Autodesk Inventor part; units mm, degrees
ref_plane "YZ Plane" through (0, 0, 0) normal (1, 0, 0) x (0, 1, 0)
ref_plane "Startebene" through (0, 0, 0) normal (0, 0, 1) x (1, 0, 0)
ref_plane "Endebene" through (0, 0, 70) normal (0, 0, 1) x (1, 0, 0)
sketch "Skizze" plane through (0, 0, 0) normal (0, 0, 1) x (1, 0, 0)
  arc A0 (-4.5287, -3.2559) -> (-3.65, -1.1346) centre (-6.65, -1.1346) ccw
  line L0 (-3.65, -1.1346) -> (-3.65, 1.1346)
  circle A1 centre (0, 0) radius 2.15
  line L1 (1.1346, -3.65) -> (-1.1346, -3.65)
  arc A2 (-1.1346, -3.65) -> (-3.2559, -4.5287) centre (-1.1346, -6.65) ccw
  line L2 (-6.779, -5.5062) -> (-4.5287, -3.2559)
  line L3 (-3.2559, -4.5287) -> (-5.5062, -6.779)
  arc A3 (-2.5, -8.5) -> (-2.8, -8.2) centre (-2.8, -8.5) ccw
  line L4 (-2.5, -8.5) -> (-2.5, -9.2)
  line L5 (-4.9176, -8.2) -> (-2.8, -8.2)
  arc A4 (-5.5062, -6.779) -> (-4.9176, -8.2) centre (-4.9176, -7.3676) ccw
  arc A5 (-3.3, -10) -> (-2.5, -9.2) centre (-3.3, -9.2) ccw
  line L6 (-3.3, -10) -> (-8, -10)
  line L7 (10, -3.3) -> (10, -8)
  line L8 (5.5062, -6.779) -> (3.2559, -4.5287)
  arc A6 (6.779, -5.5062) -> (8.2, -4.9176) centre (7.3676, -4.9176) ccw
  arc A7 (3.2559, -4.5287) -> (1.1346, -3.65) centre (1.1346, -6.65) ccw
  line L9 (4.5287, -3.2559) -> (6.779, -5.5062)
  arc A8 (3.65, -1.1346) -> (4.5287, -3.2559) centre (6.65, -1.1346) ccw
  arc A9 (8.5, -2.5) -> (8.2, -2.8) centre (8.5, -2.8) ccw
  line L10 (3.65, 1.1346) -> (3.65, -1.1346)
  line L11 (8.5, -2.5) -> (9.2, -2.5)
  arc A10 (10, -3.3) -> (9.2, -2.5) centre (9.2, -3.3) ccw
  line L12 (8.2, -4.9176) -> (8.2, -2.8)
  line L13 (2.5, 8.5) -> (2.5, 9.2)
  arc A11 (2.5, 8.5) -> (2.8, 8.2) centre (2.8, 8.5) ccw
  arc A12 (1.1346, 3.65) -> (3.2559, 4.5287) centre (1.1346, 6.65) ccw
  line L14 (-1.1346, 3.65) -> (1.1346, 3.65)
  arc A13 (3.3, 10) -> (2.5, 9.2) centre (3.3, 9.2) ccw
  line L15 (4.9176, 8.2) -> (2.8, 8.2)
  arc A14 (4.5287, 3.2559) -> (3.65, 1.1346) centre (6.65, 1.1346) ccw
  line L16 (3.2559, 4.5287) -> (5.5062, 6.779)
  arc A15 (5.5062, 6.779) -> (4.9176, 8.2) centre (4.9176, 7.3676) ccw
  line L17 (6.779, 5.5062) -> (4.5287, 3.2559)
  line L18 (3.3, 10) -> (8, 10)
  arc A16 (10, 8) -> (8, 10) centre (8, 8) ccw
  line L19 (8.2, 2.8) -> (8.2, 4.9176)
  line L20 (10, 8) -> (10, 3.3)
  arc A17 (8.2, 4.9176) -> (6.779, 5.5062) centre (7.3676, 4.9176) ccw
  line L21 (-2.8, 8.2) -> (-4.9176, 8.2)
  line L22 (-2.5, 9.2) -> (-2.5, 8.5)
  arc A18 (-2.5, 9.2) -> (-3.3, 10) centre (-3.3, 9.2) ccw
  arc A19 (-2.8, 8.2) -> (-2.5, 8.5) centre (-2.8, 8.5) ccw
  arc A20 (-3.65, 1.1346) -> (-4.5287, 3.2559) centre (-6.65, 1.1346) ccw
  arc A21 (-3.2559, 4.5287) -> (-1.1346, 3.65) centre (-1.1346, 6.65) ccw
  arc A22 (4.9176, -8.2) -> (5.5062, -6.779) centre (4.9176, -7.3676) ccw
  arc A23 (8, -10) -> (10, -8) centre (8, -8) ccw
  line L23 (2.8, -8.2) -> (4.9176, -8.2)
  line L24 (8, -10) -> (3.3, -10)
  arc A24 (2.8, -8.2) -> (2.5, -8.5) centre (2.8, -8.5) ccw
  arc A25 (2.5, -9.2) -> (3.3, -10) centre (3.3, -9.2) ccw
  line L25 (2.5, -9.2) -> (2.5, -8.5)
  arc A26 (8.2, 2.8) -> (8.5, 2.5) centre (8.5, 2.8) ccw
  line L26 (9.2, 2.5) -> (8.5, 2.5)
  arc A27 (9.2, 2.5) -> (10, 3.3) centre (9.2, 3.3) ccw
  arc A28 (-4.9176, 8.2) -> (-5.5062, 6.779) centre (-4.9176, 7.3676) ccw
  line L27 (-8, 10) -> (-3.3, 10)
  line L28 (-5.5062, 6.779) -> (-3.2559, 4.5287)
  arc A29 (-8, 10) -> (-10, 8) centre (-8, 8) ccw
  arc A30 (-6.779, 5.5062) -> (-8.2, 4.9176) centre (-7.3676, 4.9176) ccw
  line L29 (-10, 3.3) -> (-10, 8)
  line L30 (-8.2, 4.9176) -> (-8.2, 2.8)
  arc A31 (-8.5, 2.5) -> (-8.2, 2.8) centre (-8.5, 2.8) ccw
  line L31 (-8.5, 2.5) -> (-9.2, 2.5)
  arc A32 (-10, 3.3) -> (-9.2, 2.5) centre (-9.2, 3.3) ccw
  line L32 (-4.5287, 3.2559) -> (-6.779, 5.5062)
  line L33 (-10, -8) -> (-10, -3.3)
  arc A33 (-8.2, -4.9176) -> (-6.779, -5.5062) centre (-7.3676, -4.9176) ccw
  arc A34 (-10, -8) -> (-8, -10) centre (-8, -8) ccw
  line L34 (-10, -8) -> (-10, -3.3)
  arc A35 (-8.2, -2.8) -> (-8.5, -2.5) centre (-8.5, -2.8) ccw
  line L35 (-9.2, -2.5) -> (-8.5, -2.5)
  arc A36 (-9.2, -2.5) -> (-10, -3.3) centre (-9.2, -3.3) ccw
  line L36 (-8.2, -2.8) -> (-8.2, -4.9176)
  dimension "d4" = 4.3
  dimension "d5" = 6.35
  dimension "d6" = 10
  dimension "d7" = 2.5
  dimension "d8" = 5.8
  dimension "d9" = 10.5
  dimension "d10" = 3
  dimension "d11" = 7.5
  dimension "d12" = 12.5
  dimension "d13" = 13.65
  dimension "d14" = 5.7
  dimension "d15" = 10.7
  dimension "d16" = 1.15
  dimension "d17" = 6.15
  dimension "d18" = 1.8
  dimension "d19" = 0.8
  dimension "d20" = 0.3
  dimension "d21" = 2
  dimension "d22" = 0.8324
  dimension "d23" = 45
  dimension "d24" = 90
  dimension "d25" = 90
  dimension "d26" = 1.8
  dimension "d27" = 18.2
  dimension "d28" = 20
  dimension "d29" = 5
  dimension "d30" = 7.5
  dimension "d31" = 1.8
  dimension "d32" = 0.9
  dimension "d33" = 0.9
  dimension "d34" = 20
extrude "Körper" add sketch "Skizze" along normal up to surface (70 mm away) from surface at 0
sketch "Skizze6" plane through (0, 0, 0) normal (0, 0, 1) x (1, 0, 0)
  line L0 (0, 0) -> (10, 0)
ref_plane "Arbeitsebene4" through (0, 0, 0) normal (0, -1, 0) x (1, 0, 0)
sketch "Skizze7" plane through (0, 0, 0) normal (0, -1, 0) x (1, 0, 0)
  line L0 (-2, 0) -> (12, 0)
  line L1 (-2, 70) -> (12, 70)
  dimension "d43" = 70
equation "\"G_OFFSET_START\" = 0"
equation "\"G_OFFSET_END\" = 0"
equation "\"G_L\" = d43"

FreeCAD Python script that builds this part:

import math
import FreeCAD as App
import Part
import Sketcher

V = App.Vector
Q = App.Units.Quantity

doc = App.newDocument("Part")
body = doc.addObject("PartDesign::Body", "Body")

# Sketch on XY plane
sketch1 = body.newObject("Sketcher::SketchObject", "Sketch")
sketch1.AttachmentSupport = (doc.getObject("XY_Plane"), [""])
sketch1.MapMode = "FlatFace"
sketch1.addGeometry([
    Part.ArcOfCircle(Part.Circle(V(-6.65, -1.13, 0), V(0, 0, 1), 3), math.radians(-45), math.radians(0)),  # 0
    Part.LineSegment(V(-4.53, -3.26, 0), V(-6.78, -5.51, 0)),  # 1
    Part.ArcOfCircle(Part.Circle(V(-7.37, -4.92, 0), V(0, 0, 1), 0.83), math.radians(180), math.radians(315)),  # 2
    Part.LineSegment(V(-8.2, -4.92, 0), V(-8.2, -2.8, 0)),  # 3
    Part.ArcOfCircle(Part.Circle(V(-8.5, -2.8, 0), V(0, 0, 1), 0.3), math.radians(0), math.radians(90)),  # 4
    Part.LineSegment(V(-8.5, -2.5, 0), V(-9.2, -2.5, 0)),  # 5
    Part.ArcOfCircle(Part.Circle(V(-9.2, -3.3, 0), V(0, 0, 1), 0.8), math.radians(90), math.radians(180)),  # 6
    Part.LineSegment(V(-10, -3.3, 0), V(-10, -8, 0)),  # 7
    Part.ArcOfCircle(Part.Circle(V(-8, -8, 0), V(0, 0, 1), 2), math.radians(180), math.radians(270)),  # 8
    Part.LineSegment(V(-8, -10, 0), V(-3.3, -10, 0)),  # 9
    Part.ArcOfCircle(Part.Circle(V(-3.3, -9.2, 0), V(0, 0, 1), 0.8), math.radians(-90), math.radians(0)),  # 10
    Part.LineSegment(V(-2.5, -9.2, 0), V(-2.5, -8.5, 0)),  # 11
    Part.ArcOfCircle(Part.Circle(V(-2.8, -8.5, 0), V(0, 0, 1), 0.3), math.radians(0), math.radians(90)),  # 12
    Part.LineSegment(V(-2.8, -8.2, 0), V(-4.92, -8.2, 0)),  # 13
    Part.ArcOfCircle(Part.Circle(V(-4.92, -7.37, 0), V(0, 0, 1), 0.83), math.radians(135), math.radians(270)),  # 14
    Part.LineSegment(V(-5.51, -6.78, 0), V(-3.26, -4.53, 0)),  # 15
    Part.ArcOfCircle(Part.Circle(V(-1.13, -6.65, 0), V(0, 0, 1), 3), math.radians(90), math.radians(135)),  # 16
    Part.LineSegment(V(-1.13, -3.65, 0), V(1.13, -3.65, 0)),  # 17
    Part.ArcOfCircle(Part.Circle(V(1.13, -6.65, 0), V(0, 0, 1), 3), math.radians(45), math.radians(90)),  # 18
    Part.LineSegment(V(3.26, -4.53, 0), V(5.51, -6.78, 0)),  # 19
    Part.ArcOfCircle(Part.Circle(V(4.92, -7.37, 0), V(0, 0, 1), 0.83), math.radians(-90), math.radians(45)),  # 20
    Part.LineSegment(V(4.92, -8.2, 0), V(2.8, -8.2, 0)),  # 21
    Part.ArcOfCircle(Part.Circle(V(2.8, -8.5, 0), V(0, 0, 1), 0.3), math.radians(90), math.radians(180)),  # 22
    Part.LineSegment(V(2.5, -8.5, 0), V(2.5, -9.2, 0)),  # 23
    Part.ArcOfCircle(Part.Circle(V(3.3, -9.2, 0), V(0, 0, 1), 0.8), math.radians(180), math.radians(270)),  # 24
    Part.LineSegment(V(3.3, -10, 0), V(8, -10, 0)),  # 25
    Part.ArcOfCircle(Part.Circle(V(8, -8, 0), V(0, 0, 1), 2), math.radians(-90), math.radians(0)),  # 26
    Part.LineSegment(V(10, -8, 0), V(10, -3.3, 0)),  # 27
    Part.ArcOfCircle(Part.Circle(V(9.2, -3.3, 0), V(0, 0, 1), 0.8), math.radians(0), math.radians(90)),  # 28
    Part.LineSegment(V(9.2, -2.5, 0), V(8.5, -2.5, 0)),  # 29
    Part.ArcOfCircle(Part.Circle(V(8.5, -2.8, 0), V(0, 0, 1), 0.3), math.radians(90), math.radians(180)),  # 30
    Part.LineSegment(V(8.2, -2.8, 0), V(8.2, -4.92, 0)),  # 31
    Part.ArcOfCircle(Part.Circle(V(7.37, -4.92, 0), V(0, 0, 1), 0.83), math.radians(-135), math.radians(0)),  # 32
    Part.LineSegment(V(6.78, -5.51, 0), V(4.53, -3.26, 0)),  # 33
    Part.ArcOfCircle(Part.Circle(V(6.65, -1.13, 0), V(0, 0, 1), 3), math.radians(180), math.radians(225)),  # 34
    Part.LineSegment(V(3.65, -1.13, 0), V(3.65, 1.13, 0)),  # 35
    Part.ArcOfCircle(Part.Circle(V(6.65, 1.13, 0), V(0, 0, 1), 3), math.radians(135), math.radians(180)),  # 36
    Part.LineSegment(V(4.53, 3.26, 0), V(6.78, 5.51, 0)),  # 37
    Part.ArcOfCircle(Part.Circle(V(7.37, 4.92, 0), V(0, 0, 1), 0.83), math.radians(0), math.radians(135)),  # 38
    Part.LineSegment(V(8.2, 4.92, 0), V(8.2, 2.8, 0)),  # 39
    Part.ArcOfCircle(Part.Circle(V(8.5, 2.8, 0), V(0, 0, 1), 0.3), math.radians(180), math.radians(270)),  # 40
    Part.LineSegment(V(8.5, 2.5, 0), V(9.2, 2.5, 0)),  # 41
    Part.ArcOfCircle(Part.Circle(V(9.2, 3.3, 0), V(0, 0, 1), 0.8), math.radians(-90), math.radians(0)),  # 42
    Part.LineSegment(V(10, 3.3, 0), V(10, 8, 0)),  # 43
    Part.ArcOfCircle(Part.Circle(V(8, 8, 0), V(0, 0, 1), 2), math.radians(0), math.radians(90)),  # 44
    Part.LineSegment(V(8, 10, 0), V(3.3, 10, 0)),  # 45
    Part.ArcOfCircle(Part.Circle(V(3.3, 9.2, 0), V(0, 0, 1), 0.8), math.radians(90), math.radians(180)),  # 46
    Part.LineSegment(V(2.5, 9.2, 0), V(2.5, 8.5, 0)),  # 47
    Part.ArcOfCircle(Part.Circle(V(2.8, 8.5, 0), V(0, 0, 1), 0.3), math.radians(180), math.radians(270)),  # 48
    Part.LineSegment(V(2.8, 8.2, 0), V(4.92, 8.2, 0)),  # 49
    Part.ArcOfCircle(Part.Circle(V(4.92, 7.37, 0), V(0, 0, 1), 0.83), math.radians(-45), math.radians(90)),  # 50
    Part.LineSegment(V(5.51, 6.78, 0), V(3.26, 4.53, 0)),  # 51
    Part.ArcOfCircle(Part.Circle(V(1.13, 6.65, 0), V(0, 0, 1), 3), math.radians(-90), math.radians(-45)),  # 52
    Part.LineSegment(V(1.13, 3.65, 0), V(-1.13, 3.65, 0)),  # 53
    Part.ArcOfCircle(Part.Circle(V(-1.13, 6.65, 0), V(0, 0, 1), 3), math.radians(-135), math.radians(-90)),  # 54
    Part.LineSegment(V(-3.26, 4.53, 0), V(-5.51, 6.78, 0)),  # 55
    Part.ArcOfCircle(Part.Circle(V(-4.92, 7.37, 0), V(0, 0, 1), 0.83), math.radians(90), math.radians(225)),  # 56
    Part.LineSegment(V(-4.92, 8.2, 0), V(-2.8, 8.2, 0)),  # 57
    Part.ArcOfCircle(Part.Circle(V(-2.8, 8.5, 0), V(0, 0, 1), 0.3), math.radians(-90), math.radians(0)),  # 58
    Part.LineSegment(V(-2.5, 8.5, 0), V(-2.5, 9.2, 0)),  # 59
    Part.ArcOfCircle(Part.Circle(V(-3.3, 9.2, 0), V(0, 0, 1), 0.8), math.radians(0), math.radians(90)),  # 60
    Part.LineSegment(V(-3.3, 10, 0), V(-8, 10, 0)),  # 61
    Part.ArcOfCircle(Part.Circle(V(-8, 8, 0), V(0, 0, 1), 2), math.radians(90), math.radians(180)),  # 62
    Part.LineSegment(V(-10, 8, 0), V(-10, 3.3, 0)),  # 63
    Part.ArcOfCircle(Part.Circle(V(-9.2, 3.3, 0), V(0, 0, 1), 0.8), math.radians(180), math.radians(270)),  # 64
    Part.LineSegment(V(-9.2, 2.5, 0), V(-8.5, 2.5, 0)),  # 65
    Part.ArcOfCircle(Part.Circle(V(-8.5, 2.8, 0), V(0, 0, 1), 0.3), math.radians(-90), math.radians(0)),  # 66
    Part.LineSegment(V(-8.2, 2.8, 0), V(-8.2, 4.92, 0)),  # 67
    Part.ArcOfCircle(Part.Circle(V(-7.37, 4.92, 0), V(0, 0, 1), 0.83), math.radians(45), math.radians(180)),  # 68
    Part.LineSegment(V(-6.78, 5.51, 0), V(-4.53, 3.26, 0)),  # 69
    Part.ArcOfCircle(Part.Circle(V(-6.65, 1.13, 0), V(0, 0, 1), 3), math.radians(0), math.radians(45)),  # 70
    Part.LineSegment(V(-3.65, 1.13, 0), V(-3.65, -1.13, 0)),  # 71
    Part.Circle(V(0, 0, 0), V(0, 0, 1), 2.15),  # 72
], False)
sketch1.addConstraint([
    Sketcher.Constraint("Tangent", 0, 1, 1, 1),
    Sketcher.Constraint("Tangent", 1, 2, 2, 2),
    Sketcher.Constraint("Tangent", 2, 1, 3, 1),
    Sketcher.Constraint("Tangent", 3, 2, 4, 1),
    Sketcher.Constraint("Tangent", 4, 2, 5, 1),
    Sketcher.Constraint("Tangent", 5, 2, 6, 1),
    Sketcher.Constraint("Tangent", 6, 2, 7, 1),
    Sketcher.Constraint("Tangent", 7, 2, 8, 1),
    Sketcher.Constraint("Tangent", 8, 2, 9, 1),
    Sketcher.Constraint("Tangent", 9, 2, 10, 1),
    Sketcher.Constraint("Tangent", 10, 2, 11, 1),
    Sketcher.Constraint("Tangent", 11, 2, 12, 1),
    Sketcher.Constraint("Tangent", 12, 2, 13, 1),
    Sketcher.Constraint("Tangent", 13, 2, 14, 2),
    Sketcher.Constraint("Tangent", 14, 1, 15, 1),
    Sketcher.Constraint("Tangent", 15, 2, 16, 2),
    Sketcher.Constraint("Tangent", 16, 1, 17, 1),
    Sketcher.Constraint("Tangent", 17, 2, 18, 2),
    Sketcher.Constraint("Tangent", 18, 1, 19, 1),
    Sketcher.Constraint("Tangent", 19, 2, 20, 2),
    Sketcher.Constraint("Tangent", 20, 1, 21, 1),
    Sketcher.Constraint("Tangent", 21, 2, 22, 1),
    Sketcher.Constraint("Tangent", 22, 2, 23, 1),
    Sketcher.Constraint("Tangent", 23, 2, 24, 1),
    Sketcher.Constraint("Tangent", 24, 2, 25, 1),
    Sketcher.Constraint("Tangent", 25, 2, 26, 1),
    Sketcher.Constraint("Tangent", 26, 2, 27, 1),
    Sketcher.Constraint("Tangent", 27, 2, 28, 1),
    Sketcher.Constraint("Tangent", 28, 2, 29, 1),
    Sketcher.Constraint("Tangent", 29, 2, 30, 1),
    Sketcher.Constraint("Tangent", 30, 2, 31, 1),
    Sketcher.Constraint("Tangent", 31, 2, 32, 2),
    Sketcher.Constraint("Tangent", 32, 1, 33, 1),
    Sketcher.Constraint("Tangent", 33, 2, 34, 2),
    Sketcher.Constraint("Tangent", 34, 1, 35, 1),
    Sketcher.Constraint("Tangent", 35, 2, 36, 2),
    Sketcher.Constraint("Tangent", 36, 1, 37, 1),
    Sketcher.Constraint("Tangent", 37, 2, 38, 2),
    Sketcher.Constraint("Tangent", 38, 1, 39, 1),
    Sketcher.Constraint("Tangent", 39, 2, 40, 1),
    Sketcher.Constraint("Tangent", 40, 2, 41, 1),
    Sketcher.Constraint("Tangent", 41, 2, 42, 1),
    Sketcher.Constraint("Tangent", 42, 2, 43, 1),
    Sketcher.Constraint("Tangent", 43, 2, 44, 1),
    Sketcher.Constraint("Tangent", 44, 2, 45, 1),
    Sketcher.Constraint("Tangent", 45, 2, 46, 1),
    Sketcher.Constraint("Tangent", 46, 2, 47, 1),
    Sketcher.Constraint("Tangent", 47, 2, 48, 1),
    Sketcher.Constraint("Tangent", 48, 2, 49, 1),
    Sketcher.Constraint("Tangent", 49, 2, 50, 2),
    Sketcher.Constraint("Tangent", 50, 1, 51, 1),
    Sketcher.Constraint("Tangent", 51, 2, 52, 2),
    Sketcher.Constraint("Tangent", 52, 1, 53, 1),
    Sketcher.Constraint("Tangent", 53, 2, 54, 2),
    Sketcher.Constraint("Tangent", 54, 1, 55, 1),
    Sketcher.Constraint("Tangent", 55, 2, 56, 2),
    Sketcher.Constraint("Tangent", 56, 1, 57, 1),
    Sketcher.Constraint("Tangent", 57, 2, 58, 1),
    Sketcher.Constraint("Tangent", 58, 2, 59, 1),
    Sketcher.Constraint("Tangent", 59, 2, 60, 1),
    Sketcher.Constraint("Tangent", 60, 2, 61, 1),
    Sketcher.Constraint("Tangent", 61, 2, 62, 1),
    Sketcher.Constraint("Tangent", 62, 2, 63, 1),
    Sketcher.Constraint("Tangent", 63, 2, 64, 1),
    Sketcher.Constraint("Tangent", 64, 2, 65, 1),
    Sketcher.Constraint("Tangent", 65, 2, 66, 1),
    Sketcher.Constraint("Tangent", 66, 2, 67, 1),
    Sketcher.Constraint("Tangent", 67, 2, 68, 2),
    Sketcher.Constraint("Tangent", 68, 1, 69, 1),
    Sketcher.Constraint("Tangent", 69, 2, 70, 2),
    Sketcher.Constraint("Tangent", 70, 1, 71, 1),
    Sketcher.Constraint("Tangent", 71, 2, 0, 2),
    Sketcher.Constraint("Vertical", 3),
    Sketcher.Constraint("Horizontal", 5),
    Sketcher.Constraint("Vertical", 7),
    Sketcher.Constraint("Horizontal", 9),
    Sketcher.Constraint("Vertical", 11),
    Sketcher.Constraint("Horizontal", 13),
    Sketcher.Constraint("Horizontal", 17),
    Sketcher.Constraint("Horizontal", 21),
    Sketcher.Constraint("Vertical", 23),
    Sketcher.Constraint("Horizontal", 25),
    Sketcher.Constraint("Vertical", 27),
    Sketcher.Constraint("Horizontal", 29),
    Sketcher.Constraint("Vertical", 31),
    Sketcher.Constraint("Vertical", 35),
    Sketcher.Constraint("Vertical", 39),
    Sketcher.Constraint("Horizontal", 41),
    Sketcher.Constraint("Vertical", 43),
    Sketcher.Constraint("Horizontal", 45),
    Sketcher.Constraint("Vertical", 47),
    Sketcher.Constraint("Horizontal", 49),
    Sketcher.Constraint("Horizontal", 53),
    Sketcher.Constraint("Horizontal", 57),
    Sketcher.Constraint("Vertical", 59),
    Sketcher.Constraint("Horizontal", 61),
    Sketcher.Constraint("Vertical", 63),
    Sketcher.Constraint("Horizontal", 65),
    Sketcher.Constraint("Vertical", 67),
    Sketcher.Constraint("Vertical", 71),
    Sketcher.Constraint("Coincident", 72, 3, -1, 1),
    Sketcher.Constraint("Equal", 6, 10),
    Sketcher.Constraint("Equal", 4, 12),
    Sketcher.Constraint("Equal", 2, 14),
    Sketcher.Constraint("Equal", 0, 16),
    Sketcher.Constraint("Equal", 16, 18),
    Sketcher.Constraint("Equal", 14, 20),
    Sketcher.Constraint("Equal", 12, 22),
    Sketcher.Constraint("Equal", 10, 24),
    Sketcher.Constraint("Equal", 8, 26),
    Sketcher.Constraint("Equal", 24, 28),
    Sketcher.Constraint("Equal", 22, 30),
    Sketcher.Constraint("Equal", 20, 32),
    Sketcher.Constraint("Equal", 18, 34),
    Sketcher.Constraint("Equal", 34, 36),
    Sketcher.Constraint("Equal", 32, 38),
    Sketcher.Constraint("Equal", 30, 40),
    Sketcher.Constraint("Equal", 28, 42),
    Sketcher.Constraint("Equal", 26, 44),
    Sketcher.Constraint("Equal", 42, 46),
    Sketcher.Constraint("Equal", 40, 48),
    Sketcher.Constraint("Equal", 38, 50),
    Sketcher.Constraint("Equal", 36, 52),
    Sketcher.Constraint("Equal", 52, 54),
    Sketcher.Constraint("Equal", 50, 56),
    Sketcher.Constraint("Equal", 48, 58),
    Sketcher.Constraint("Equal", 46, 60),
    Sketcher.Constraint("Equal", 44, 62),
    Sketcher.Constraint("Equal", 60, 64),
    Sketcher.Constraint("Equal", 58, 66),
    Sketcher.Constraint("Equal", 56, 68),
    Sketcher.Constraint("Equal", 54, 70),
    Sketcher.Constraint("Symmetric", 0, 3, 36, 3, -1, 1),
    Sketcher.Constraint("Symmetric", 2, 3, 38, 3, -1, 1),
    Sketcher.Constraint("Symmetric", 6, 3, 42, 3, -1, 1),
    Sketcher.Constraint("Symmetric", 10, 3, 46, 3, -1, 1),
    Sketcher.Constraint("Symmetric", 14, 3, 50, 3, -1, 1),
    Sketcher.Constraint("Symmetric", 16, 3, 52, 3, -1, 1),
    Sketcher.Constraint("Symmetric", 20, 3, 56, 3, -1, 1),
    Sketcher.Constraint("Symmetric", 24, 3, 60, 3, -1, 1),
    Sketcher.Constraint("Symmetric", 28, 3, 64, 3, -1, 1),
    Sketcher.Constraint("Symmetric", 32, 3, 68, 3, -1, 1),
    Sketcher.Constraint("Symmetric", 14, 3, 20, 3, -2),
    Sketcher.Constraint("Symmetric", 10, 3, 24, 3, -2),
    Sketcher.Constraint("Symmetric", 6, 3, 28, 3, -2),
    Sketcher.Constraint("Symmetric", 2, 3, 32, 3, -2),
    Sketcher.Constraint("Parallel", 1, 15),
    Sketcher.Constraint("Perpendicular", 15, 19),
    Sketcher.Constraint("Parallel", 19, 33),
    Sketcher.Constraint("Perpendicular", 51, 55),
    Sketcher.Constraint("Parallel", 55, 69),
    Sketcher.Constraint("Horizontal", 0, 3, 34, 3),
    Sketcher.Constraint("Equal", 57, 3),
    Sketcher.Constraint("Equal", 61, 7),
    Sketcher.Constraint("Equal", 65, 11),
    Sketcher.Constraint("Equal", 53, 35),
    Sketcher.Constraint("Equal", 1, 15),
    Sketcher.Constraint("Radius", 0, Q("3 mm")),
    Sketcher.Constraint("Radius", 8, Q("2 mm")),
    Sketcher.Constraint("Diameter", 72, Q("4.3 mm")),
    Sketcher.Constraint("Radius", 4, Q("0.3 mm")),
    Sketcher.Constraint("Radius", 6, Q("0.8 mm")),
    Sketcher.Constraint("DistanceX", 6, 2, -1, 1, Q("10 mm")),
    Sketcher.Constraint("DistanceY", 4, 2, -1, 1, Q("2.5 mm")),
    Sketcher.Constraint("Radius", 2, Q("0.8324 mm")),
    Sketcher.Constraint("DistanceX", 5, 2, 5, 1, Q("0.7 mm")),
    Sketcher.Constraint("DistanceX", 0, 3, -1, 1, Q("6.65 mm")),
    Sketcher.Constraint("DistanceX", 13, 2, 13, 1, Q("2.1176 mm")),
])
pad1 = body.newObject("PartDesign::Pad", "Pad")
pad1.Profile = sketch1
pad1.Length = 70

doc.recompute()
